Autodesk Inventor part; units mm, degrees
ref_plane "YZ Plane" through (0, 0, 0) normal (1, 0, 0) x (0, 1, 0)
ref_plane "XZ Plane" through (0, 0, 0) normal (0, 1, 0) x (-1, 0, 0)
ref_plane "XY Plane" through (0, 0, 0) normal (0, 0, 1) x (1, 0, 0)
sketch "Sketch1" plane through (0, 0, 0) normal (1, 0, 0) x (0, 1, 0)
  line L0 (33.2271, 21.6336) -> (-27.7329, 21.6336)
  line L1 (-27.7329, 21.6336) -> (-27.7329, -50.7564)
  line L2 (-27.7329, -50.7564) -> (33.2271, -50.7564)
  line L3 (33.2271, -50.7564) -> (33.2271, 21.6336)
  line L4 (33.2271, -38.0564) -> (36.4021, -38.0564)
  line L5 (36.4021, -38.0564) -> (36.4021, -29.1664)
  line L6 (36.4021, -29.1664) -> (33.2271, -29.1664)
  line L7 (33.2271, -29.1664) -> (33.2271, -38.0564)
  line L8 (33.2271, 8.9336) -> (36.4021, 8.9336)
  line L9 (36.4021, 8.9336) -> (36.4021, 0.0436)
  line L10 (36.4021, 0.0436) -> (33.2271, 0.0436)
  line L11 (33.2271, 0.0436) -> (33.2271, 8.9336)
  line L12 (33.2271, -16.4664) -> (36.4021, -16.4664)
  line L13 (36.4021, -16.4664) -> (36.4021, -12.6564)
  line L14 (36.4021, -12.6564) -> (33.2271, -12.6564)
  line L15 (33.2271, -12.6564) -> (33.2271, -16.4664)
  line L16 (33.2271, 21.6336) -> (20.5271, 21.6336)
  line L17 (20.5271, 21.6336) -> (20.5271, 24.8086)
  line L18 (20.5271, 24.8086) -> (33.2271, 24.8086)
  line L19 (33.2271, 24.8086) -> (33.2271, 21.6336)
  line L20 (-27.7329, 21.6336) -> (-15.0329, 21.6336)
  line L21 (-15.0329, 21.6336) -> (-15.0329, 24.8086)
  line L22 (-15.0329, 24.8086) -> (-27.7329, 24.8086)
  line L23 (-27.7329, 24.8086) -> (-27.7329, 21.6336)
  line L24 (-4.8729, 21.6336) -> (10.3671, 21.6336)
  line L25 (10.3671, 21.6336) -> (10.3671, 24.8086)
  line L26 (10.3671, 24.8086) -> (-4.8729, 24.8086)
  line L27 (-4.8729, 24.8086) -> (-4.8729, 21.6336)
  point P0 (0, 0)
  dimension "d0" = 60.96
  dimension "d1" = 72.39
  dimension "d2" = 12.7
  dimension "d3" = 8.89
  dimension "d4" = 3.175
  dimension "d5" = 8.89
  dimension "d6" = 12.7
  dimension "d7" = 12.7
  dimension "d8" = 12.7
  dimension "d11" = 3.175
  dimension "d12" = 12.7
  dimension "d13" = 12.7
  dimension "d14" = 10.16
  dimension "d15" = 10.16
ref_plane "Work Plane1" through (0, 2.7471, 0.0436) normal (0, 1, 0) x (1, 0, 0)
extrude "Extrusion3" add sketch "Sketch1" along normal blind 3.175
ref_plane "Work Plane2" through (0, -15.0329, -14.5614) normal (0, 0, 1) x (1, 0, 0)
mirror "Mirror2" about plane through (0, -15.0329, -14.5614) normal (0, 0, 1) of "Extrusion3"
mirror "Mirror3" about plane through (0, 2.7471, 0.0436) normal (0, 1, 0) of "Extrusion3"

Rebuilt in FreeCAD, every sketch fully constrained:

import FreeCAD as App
import Part
import Sketcher
from FreeCAD import Vector
Q = App.Units.Quantity


def add_polygon(sketch, points):
    """Adds a closed chain of lines whose ends are joined by coincident constraints."""
    first, n = sketch.GeometryCount, len(points)
    for a, b in zip(points, points[1:] + points[:1]):
        sketch.addGeometry(Part.LineSegment(App.Vector(*a, 0), App.Vector(*b, 0)), False)
    for i in range(n):
        sketch.addConstraint(Sketcher.Constraint("Coincident", first + i, 2, first + (i + 1) % n, 1))

doc = App.newDocument("Part")
body = doc.addObject("PartDesign::Body", "Body")

# Sketch on YZ plane
sketch1 = body.newObject("Sketcher::SketchObject", "Sketch")
sketch1.AttachmentSupport = (doc.getObject("YZ_Plane"), [""])
sketch1.MapMode = "FlatFace"
add_polygon(sketch1, [(33.2, 8.9), (33.2, 24.8), (20.5, 24.8), (20.5, 21.6), (10.4, 21.6), (10.4, 24.8), (-4.9, 24.8), (-4.9, 21.6), (-15, 21.6), (-15, 24.8), (-27.7, 24.8), (-27.7, -50.8), (33.2, -50.8), (33.2, -38.1), (36.4, -38.1), (36.4, -29.2), (33.2, -29.2), (33.2, -16.5), (36.4, -16.5), (36.4, -12.7), (33.2, -12.7), (33.2, 0), (36.4, 0), (36.4, 8.9)])  # lines 0-23
sketch1.addConstraint([
    Sketcher.Constraint("Vertical", 0),
    Sketcher.Constraint("Horizontal", 1),
    Sketcher.Constraint("Vertical", 2),
    Sketcher.Constraint("Horizontal", 3),
    Sketcher.Constraint("Vertical", 4),
    Sketcher.Constraint("Horizontal", 5),
    Sketcher.Constraint("Vertical", 6),
    Sketcher.Constraint("Horizontal", 7),
    Sketcher.Constraint("Vertical", 8),
    Sketcher.Constraint("Horizontal", 9),
    Sketcher.Constraint("Vertical", 10),
    Sketcher.Constraint("Horizontal", 11),
    Sketcher.Constraint("Vertical", 12),
    Sketcher.Constraint("Horizontal", 13),
    Sketcher.Constraint("Vertical", 14),
    Sketcher.Constraint("Horizontal", 15),
    Sketcher.Constraint("Vertical", 16),
    Sketcher.Constraint("Horizontal", 17),
    Sketcher.Constraint("Vertical", 18),
    Sketcher.Constraint("Horizontal", 19),
    Sketcher.Constraint("Vertical", 20),
    Sketcher.Constraint("Horizontal", 21),
    Sketcher.Constraint("Vertical", 22),
    Sketcher.Constraint("Horizontal", 23),
    Sketcher.Constraint("Horizontal", 1, 2, 4, 2),
    Sketcher.Constraint("Horizontal", 3, 2, 6, 2),
    Sketcher.Constraint("Horizontal", 5, 2, 8, 2),
    Sketcher.Constraint("Vertical", 0, 2, 11, 2),
    Sketcher.Constraint("Vertical", 12, 2, 15, 2),
    Sketcher.Constraint("Vertical", 14, 2, 17, 2),
    Sketcher.Constraint("Vertical", 16, 2, 19, 2),
    Sketcher.Constraint("Vertical", 18, 2, 21, 2),
    Sketcher.Constraint("Equal", 3, 7),
    Sketcher.Constraint("Equal", 1, 9),
    Sketcher.Constraint("Equal", 23, 2),
    Sketcher.Constraint("Equal", 9, 12),
    Sketcher.Constraint("Equal", 12, 16),
    Sketcher.Constraint("Equal", 16, 20),
    Sketcher.Constraint("Equal", 14, 22),
    Sketcher.Constraint("DistanceX", 1, 2, 1, 1, Q("0.5 in")),
    Sketcher.Constraint("DistanceX", 3, 2, 3, 1, Q("0.4 in")),
    Sketcher.Constraint("DistanceX", 11, 1, 11, 2, Q("2.4 in")),
    Sketcher.Constraint("DistanceY", 14, 1, 14, 2, Q("0.35 in")),
    Sketcher.Constraint("DistanceY", 22, 2, 2, 2, Q("0.5 in")),
    Sketcher.Constraint("DistanceX", 13, 1, 13, 2, Q("0.125 in")),
    Sketcher.Constraint("DistanceY", 10, 2, 7, 2, Q("2.85 in")),
    Sketcher.Constraint("DistanceX", -1, 1, 0, 2, Q("33.227 mm")),
    Sketcher.Constraint("DistanceY", -1, 1, 0, 2, Q("24.8086 mm")),
])
pad1 = body.newObject("PartDesign::Pad", "Pad")
pad1.Profile = sketch1
pad1.Length = Q("0.125 in")
doc.recompute()

datumplane = body.newObject("PartDesign::Plane", "DatumPlane")
datumplane.AttachmentSupport = (doc.getObject("XY_Plane"), [""])
datumplane.MapMode = "FlatFace"
datumplane.AttachmentOffset = App.Placement(Vector(0, 0, -14.5614), App.Rotation())
mirrored = body.newObject("PartDesign::Mirrored", "Mirrored")
mirrored.Originals = [pad1]
mirrored.MirrorPlane = (datumplane, [""])
body.Tip = mirrored
doc.recompute()

datumplane2 = body.newObject("PartDesign::Plane", "DatumPlane001")
datumplane2.AttachmentSupport = (doc.getObject("XZ_Plane"), [""])
datumplane2.MapMode = "FlatFace"
datumplane2.AttachmentOffset = App.Placement(Vector(0, 0, -2.7471), App.Rotation())
mirrored2 = body.newObject("PartDesign::Mirrored", "Mirrored001")
mirrored2.Originals = [pad1]
mirrored2.MirrorPlane = (datumplane2, [""])
body.Tip = mirrored2

doc.recompute()
